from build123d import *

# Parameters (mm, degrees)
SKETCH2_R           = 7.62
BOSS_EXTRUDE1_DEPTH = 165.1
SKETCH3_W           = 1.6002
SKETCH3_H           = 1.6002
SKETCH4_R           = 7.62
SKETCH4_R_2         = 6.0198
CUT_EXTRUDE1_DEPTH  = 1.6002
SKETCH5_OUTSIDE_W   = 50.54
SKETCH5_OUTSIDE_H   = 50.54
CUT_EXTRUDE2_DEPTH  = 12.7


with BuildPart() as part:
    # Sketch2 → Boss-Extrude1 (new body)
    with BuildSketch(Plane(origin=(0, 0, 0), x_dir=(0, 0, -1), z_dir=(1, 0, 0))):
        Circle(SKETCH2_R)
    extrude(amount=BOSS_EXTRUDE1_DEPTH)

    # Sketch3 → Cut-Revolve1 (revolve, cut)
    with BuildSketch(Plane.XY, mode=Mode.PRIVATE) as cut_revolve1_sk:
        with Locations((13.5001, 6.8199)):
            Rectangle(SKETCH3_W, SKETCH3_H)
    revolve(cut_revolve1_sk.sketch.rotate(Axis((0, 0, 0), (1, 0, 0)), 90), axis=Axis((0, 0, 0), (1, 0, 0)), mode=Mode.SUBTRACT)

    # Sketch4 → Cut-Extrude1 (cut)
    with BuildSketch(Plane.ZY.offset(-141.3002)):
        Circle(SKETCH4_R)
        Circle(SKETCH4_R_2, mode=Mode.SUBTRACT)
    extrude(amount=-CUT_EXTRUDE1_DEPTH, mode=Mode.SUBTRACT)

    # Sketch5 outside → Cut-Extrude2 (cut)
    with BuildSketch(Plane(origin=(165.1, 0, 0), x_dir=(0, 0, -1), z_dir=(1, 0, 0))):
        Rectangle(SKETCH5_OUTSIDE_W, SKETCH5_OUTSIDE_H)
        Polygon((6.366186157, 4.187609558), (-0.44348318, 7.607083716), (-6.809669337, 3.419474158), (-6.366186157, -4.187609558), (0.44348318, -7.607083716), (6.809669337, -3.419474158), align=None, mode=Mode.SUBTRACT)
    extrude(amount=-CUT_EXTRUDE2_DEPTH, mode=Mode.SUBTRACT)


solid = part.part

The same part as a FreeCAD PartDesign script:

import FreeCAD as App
import Part
import Sketcher

V = App.Vector
Q = App.Units.Quantity


def add_polygon(sketch, points):
    """Adds a closed chain of lines whose ends are joined by coincident constraints."""
    first, n = sketch.GeometryCount, len(points)
    for a, b in zip(points, points[1:] + points[:1]):
        sketch.addGeometry(Part.LineSegment(App.Vector(*a, 0), App.Vector(*b, 0)), False)
    for i in range(n):
        sketch.addConstraint(Sketcher.Constraint("Coincident", first + i, 2, first + (i + 1) % n, 1))

doc = App.newDocument("Part")
body = doc.addObject("PartDesign::Body", "Body")

# Sketch on YZ plane
sketch1 = body.newObject("Sketcher::SketchObject", "Sketch")
sketch1.AttachmentSupport = (doc.getObject("YZ_Plane"), [""])
sketch1.MapMode = "FlatFace"
sketch1.addGeometry(Part.Circle(V(0, 0, 0), V(0, 0, 1), 8), False)
sketch1.addConstraint([
    Sketcher.Constraint("Coincident", 0, 3, -1, 1),
    Sketcher.Constraint("Diameter", 0, Q("0.6 in")),
])
pad1 = body.newObject("PartDesign::Pad", "Pad")
pad1.Profile = sketch1
pad1.Length = Q("6.5 in")

# Sketch on XY plane
sketch2 = body.newObject("Sketcher::SketchObject", "Sketch001")
sketch2.AttachmentSupport = (doc.getObject("XY_Plane"), [""])
sketch2.MapMode = "FlatFace"
add_polygon(sketch2, [(12.7, 7.6), (12.7, 6), (14.3, 6), (14.3, 7.6)])  # lines 0-3
sketch2.addConstraint([
    Sketcher.Constraint("Vertical", 0),
    Sketcher.Constraint("Horizontal", 1),
    Sketcher.Constraint("Vertical", 2),
    Sketcher.Constraint("Horizontal", 3),
    Sketcher.Constraint("Equal", 3, 0),
    Sketcher.Constraint("DistanceX", -1, 1, 0, 2, Q("0.5 in")),
    Sketcher.Constraint("DistanceY", -1, 1, 2, 2, Q("0.3 in")),
    Sketcher.Constraint("DistanceX", 1, 1, 1, 2, Q("0.063 in")),
])
groove = body.newObject("PartDesign::Groove", "Groove")
groove.Profile = sketch2
groove.ReferenceAxis = (sketch2, ["H_Axis"])
groove.Angle = 360

# Sketch on YZ plane
sketch3 = body.newObject("Sketcher::SketchObject", "Sketch002")
sketch3.AttachmentSupport = (doc.getObject("YZ_Plane"), [""])
sketch3.MapMode = "FlatFace"
sketch3.AttachmentOffset = App.Placement(V(0, 0, 5.563 * 25.4), App.Rotation())
sketch3.addGeometry([
    Part.Circle(V(0, 0, 0), V(0, 0, 1), 8),
    Part.Circle(V(0, 0, 0), V(0, 0, 1), 6),
], False)
sketch3.addConstraint([
    Sketcher.Constraint("Coincident", 0, 3, -1, 1),
    Sketcher.Constraint("Coincident", 1, 3, -1, 1),
    Sketcher.Constraint("Diameter", 0, Q("0.6 in")),
    Sketcher.Constraint("Diameter", 1, Q("0.474 in")),
])
pocket1 = body.newObject("PartDesign::Pocket", "Pocket")
pocket1.Profile = sketch3
pocket1.Length = Q("0.063 in")
pocket1.Reversed = True

# Sketch on YZ plane
sketch4 = body.newObject("Sketcher::SketchObject", "Sketch003")
sketch4.AttachmentSupport = (doc.getObject("YZ_Plane"), [""])
sketch4.MapMode = "FlatFace"
sketch4.AttachmentOffset = App.Placement(V(0, 0, 6.5 * 25.4), App.Rotation())
add_polygon(sketch4, [(25, 25), (-25, 25), (-25, -25), (25, -25)])  # lines 0-3
add_polygon(sketch4, [(8, 0), (4, -6), (-3, -7), (-8, 0), (-4, 6), (3, 7)])  # lines 4-9
sketch4.addConstraint([
    Sketcher.Constraint("Horizontal", 0),
    Sketcher.Constraint("Vertical", 1),
    Sketcher.Constraint("Horizontal", 2),
    Sketcher.Constraint("Vertical", 3),
    Sketcher.Constraint("Symmetric", 0, 2, 2, 2, -1, 1),
    Sketcher.Constraint("Symmetric", 4, 2, 7, 2, -1, 1),
    Sketcher.Constraint("Symmetric", 5, 2, 8, 2, -1, 1),
    Sketcher.Constraint("Symmetric", 6, 2, 9, 2, -1, 1),
    Sketcher.Constraint("Equal", 2, 1),
    Sketcher.Constraint("Equal", 4, 5),
    Sketcher.Constraint("Equal", 5, 6),
    Sketcher.Constraint("Distance", 4, Q("0.3 in")),
    Sketcher.Constraint("DistanceX", 0, 2, 0, 1, Q("50.54 mm")),
    Sketcher.Constraint("DistanceX", -1, 1, 4, 2, Q("4.18761 mm")),
    Sketcher.Constraint("DistanceY", 5, 2, -1, 1, Q("6.809669 mm")),
    Sketcher.Constraint("DistanceX", 6, 2, 5, 2, Q("4.18761 mm")),
])
pocket2 = body.newObject("PartDesign::Pocket", "Pocket001")
pocket2.Profile = sketch4
pocket2.Length = Q("0.5 in")

doc.recompute()
